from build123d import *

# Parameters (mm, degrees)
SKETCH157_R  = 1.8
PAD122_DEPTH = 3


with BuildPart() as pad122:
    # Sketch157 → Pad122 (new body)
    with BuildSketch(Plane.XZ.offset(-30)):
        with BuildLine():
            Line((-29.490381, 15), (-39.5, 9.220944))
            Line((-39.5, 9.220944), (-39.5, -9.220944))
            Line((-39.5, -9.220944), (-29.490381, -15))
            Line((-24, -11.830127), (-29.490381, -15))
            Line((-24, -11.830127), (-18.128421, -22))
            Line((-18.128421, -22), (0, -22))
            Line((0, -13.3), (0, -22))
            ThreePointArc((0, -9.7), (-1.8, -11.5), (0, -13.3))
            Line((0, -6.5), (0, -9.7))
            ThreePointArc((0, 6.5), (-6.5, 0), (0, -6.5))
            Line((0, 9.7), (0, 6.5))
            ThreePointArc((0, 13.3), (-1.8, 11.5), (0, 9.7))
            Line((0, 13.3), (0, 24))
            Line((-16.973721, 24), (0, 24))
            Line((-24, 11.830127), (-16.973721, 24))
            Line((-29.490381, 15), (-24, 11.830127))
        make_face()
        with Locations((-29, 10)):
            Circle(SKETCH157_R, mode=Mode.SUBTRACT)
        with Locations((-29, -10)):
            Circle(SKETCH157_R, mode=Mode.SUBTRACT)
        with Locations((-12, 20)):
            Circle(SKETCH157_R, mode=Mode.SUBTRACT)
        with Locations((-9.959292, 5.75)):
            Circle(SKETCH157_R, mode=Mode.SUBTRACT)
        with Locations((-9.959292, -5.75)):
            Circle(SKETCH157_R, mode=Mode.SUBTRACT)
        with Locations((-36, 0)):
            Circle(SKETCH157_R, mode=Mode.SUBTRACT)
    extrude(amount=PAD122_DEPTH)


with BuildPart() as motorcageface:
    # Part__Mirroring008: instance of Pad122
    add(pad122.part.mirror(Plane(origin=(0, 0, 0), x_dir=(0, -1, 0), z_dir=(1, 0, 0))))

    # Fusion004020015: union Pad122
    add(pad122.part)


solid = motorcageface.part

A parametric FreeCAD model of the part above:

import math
import FreeCAD as App
import Part
import Sketcher

V = App.Vector
Q = App.Units.Quantity

doc = App.newDocument("Part")
body = doc.addObject("PartDesign::Body", "Body")

sketch1 = body.newObject("Sketcher::SketchObject", "Sketch")
sketch1.AttachmentSupport = (doc.getObject("XZ_Plane"), [""])
sketch1.MapMode = "FlatFace"
sketch1.AttachmentOffset = App.Placement(V(0, 0, -30), App.Rotation())
sketch1.addGeometry([
    Part.LineSegment(V(-29.5, 15, 0), V(-39.5, 9.2, 0)),
    Part.LineSegment(V(-39.5, 9.2, 0), V(-39.5, -9.2, 0)),
    Part.LineSegment(V(-39.5, -9.2, 0), V(-29.5, -15, 0)),
    Part.LineSegment(V(-29.5, -15, 0), V(-24, -11.8, 0)),
    Part.LineSegment(V(-24, -11.8, 0), V(-18.1, -22, 0)),
    Part.LineSegment(V(-18.1, -22, 0), V(0, -22, 0)),
    Part.LineSegment(V(0, -22, 0), V(0, -13.3, 0)),
    Part.ArcOfCircle(Part.Circle(V(0, -11.5, 0), V(0, 0, 1), 1.8), math.radians(90), math.radians(270)),
    Part.LineSegment(V(0, -9.7, 0), V(0, -6.5, 0)),
    Part.ArcOfCircle(Part.Circle(V(0, 0, 0), V(0, 0, 1), 6.5), math.radians(90), math.radians(270)),
    Part.LineSegment(V(0, 6.5, 0), V(0, 9.7, 0)),
    Part.ArcOfCircle(Part.Circle(V(0, 11.5, 0), V(0, 0, 1), 1.8), math.radians(90), math.radians(270)),
    Part.LineSegment(V(0, 13.3, 0), V(0, 24, 0)),
    Part.LineSegment(V(0, 24, 0), V(-17, 24, 0)),
    Part.LineSegment(V(-17, 24, 0), V(-24, 11.8, 0)),
    Part.LineSegment(V(-24, 11.8, 0), V(-29.5, 15, 0)),
    Part.Circle(V(-29, -10, 0), V(0, 0, 1), 1.8),
    Part.Circle(V(-36, 0, 0), V(0, 0, 1), 1.8),
    Part.Circle(V(-10, -5.8, 0), V(0, 0, 1), 1.8),
    Part.Circle(V(-29, 10, 0), V(0, 0, 1), 1.8),
    Part.Circle(V(-10, 5.8, 0), V(0, 0, 1), 1.8),
    Part.Circle(V(-12, 20, 0), V(0, 0, 1), 1.8),
], False)
sketch1.addConstraint([
    Sketcher.Constraint("Coincident", 0, 2, 1, 1),
    Sketcher.Constraint("Coincident", 1, 2, 2, 1),
    Sketcher.Constraint("Coincident", 2, 2, 3, 1),
    Sketcher.Constraint("Coincident", 3, 2, 4, 1),
    Sketcher.Constraint("Coincident", 4, 2, 5, 1),
    Sketcher.Constraint("Coincident", 5, 2, 6, 1),
    Sketcher.Constraint("Coincident", 6, 2, 7, 2),
    Sketcher.Constraint("Coincident", 7, 1, 8, 1),
    Sketcher.Constraint("Coincident", 8, 2, 9, 2),
    Sketcher.Constraint("Coincident", 9, 1, 10, 1),
    Sketcher.Constraint("Coincident", 10, 2, 11, 2),
    Sketcher.Constraint("Coincident", 11, 1, 12, 1),
    Sketcher.Constraint("Coincident", 12, 2, 13, 1),
    Sketcher.Constraint("Coincident", 13, 2, 14, 1),
    Sketcher.Constraint("Coincident", 14, 2, 15, 1),
    Sketcher.Constraint("Coincident", 15, 2, 0, 1),
    Sketcher.Constraint("Vertical", 1),
    Sketcher.Constraint("Horizontal", 5),
    Sketcher.Constraint("Vertical", 6),
    Sketcher.Constraint("Vertical", 8),
    Sketcher.Constraint("Vertical", 10),
    Sketcher.Constraint("Vertical", 12),
    Sketcher.Constraint("Horizontal", 13),
    Sketcher.Constraint("Coincident", 9, 3, -1, 1),
    Sketcher.Constraint("Equal", 7, 11),
    Sketcher.Constraint("Equal", 11, 16),
    Sketcher.Constraint("Equal", 16, 17),
    Sketcher.Constraint("Equal", 17, 18),
    Sketcher.Constraint("Equal", 18, 19),
    Sketcher.Constraint("Equal", 19, 20),
    Sketcher.Constraint("Equal", 20, 21),
    Sketcher.Constraint("Symmetric", 7, 3, 11, 3, -1, 1),
    Sketcher.Constraint("Symmetric", 16, 3, 19, 3, -1),
    Sketcher.Constraint("Symmetric", 18, 3, 20, 3, -1),
    Sketcher.Constraint("Symmetric", 3, 2, 14, 2, -1),
    Sketcher.Constraint("Symmetric", 2, 2, 15, 2, -1),
    Sketcher.Constraint("PointOnObject", 7, 3, -2),
    Sketcher.Constraint("PointOnObject", 17, 3, -1),
    Sketcher.Constraint("PointOnObject", 5, 2, -2),
    Sketcher.Constraint("PointOnObject", 7, 1, -2),
    Sketcher.Constraint("PointOnObject", 9, 1, -2),
    Sketcher.Constraint("PointOnObject", 11, 1, -2),
    Sketcher.Constraint("Parallel", 0, 3),
    Sketcher.Constraint("Perpendicular", 3, 4),
    Sketcher.Constraint("Perpendicular", 2, 14),
    Sketcher.Constraint("Perpendicular", 14, 15),
    Sketcher.Constraint("Diameter", 16, Q("3.6 mm")),
    Sketcher.Constraint("Radius", 9, Q("6.5 mm")),
    Sketcher.Constraint("Angle", 0, Q("-150.000001 deg")),
    Sketcher.Constraint("DistanceY", 6, 1, 6, 2, Q("8.7 mm")),
    Sketcher.Constraint("DistanceY", 8, 1, 8, 2, Q("3.2 mm")),
    Sketcher.Constraint("DistanceY", 12, 1, 12, 2, Q("10.7 mm")),
    Sketcher.Constraint("DistanceX", 16, 3, -1, 1, Q("29 mm")),
    Sketcher.Constraint("DistanceY", 16, 3, -1, 1, Q("10 mm")),
    Sketcher.Constraint("DistanceX", 17, 3, -1, 1, Q("36 mm")),
    Sketcher.Constraint("DistanceX", 21, 3, -1, 1, Q("12 mm")),
    Sketcher.Constraint("DistanceY", -1, 1, 21, 3, Q("20 mm")),
    Sketcher.Constraint("DistanceY", 2, 2, -1, 1, Q("15 mm")),
    Sketcher.Constraint("DistanceX", 3, 2, -1, 1, Q("24 mm")),
    Sketcher.Constraint("DistanceX", 0, 2, -1, 1, Q("39.5 mm")),
    Sketcher.Constraint("DistanceY", 18, 3, 20, 3, Q("11.5 mm")),
    Sketcher.Constraint("DistanceX", 5, 1, 5, 2, Q("18.128421 mm")),
    Sketcher.Constraint("DistanceX", 16, 3, 18, 3, Q("19.040708 mm")),
])
pad1 = body.newObject("PartDesign::Pad", "Pad")
pad1.Profile = sketch1
pad1.Length = 3
body2 = doc.addObject("PartDesign::Body", "Body001")
doc.recompute()

mirroring = doc.addObject("Part::Mirroring", "Mirroring")
mirroring.Source = body
mirroring.Base = V(0, 0, 0)
mirroring.Normal = V(1, 0, 0)
body2.BaseFeature = mirroring
doc.recompute()

boolean = body2.newObject("PartDesign::Boolean", "Boolean")
boolean.Type = "Fuse"
boolean.addObjects([body])
mirroring.Visibility = False

doc.recompute()
